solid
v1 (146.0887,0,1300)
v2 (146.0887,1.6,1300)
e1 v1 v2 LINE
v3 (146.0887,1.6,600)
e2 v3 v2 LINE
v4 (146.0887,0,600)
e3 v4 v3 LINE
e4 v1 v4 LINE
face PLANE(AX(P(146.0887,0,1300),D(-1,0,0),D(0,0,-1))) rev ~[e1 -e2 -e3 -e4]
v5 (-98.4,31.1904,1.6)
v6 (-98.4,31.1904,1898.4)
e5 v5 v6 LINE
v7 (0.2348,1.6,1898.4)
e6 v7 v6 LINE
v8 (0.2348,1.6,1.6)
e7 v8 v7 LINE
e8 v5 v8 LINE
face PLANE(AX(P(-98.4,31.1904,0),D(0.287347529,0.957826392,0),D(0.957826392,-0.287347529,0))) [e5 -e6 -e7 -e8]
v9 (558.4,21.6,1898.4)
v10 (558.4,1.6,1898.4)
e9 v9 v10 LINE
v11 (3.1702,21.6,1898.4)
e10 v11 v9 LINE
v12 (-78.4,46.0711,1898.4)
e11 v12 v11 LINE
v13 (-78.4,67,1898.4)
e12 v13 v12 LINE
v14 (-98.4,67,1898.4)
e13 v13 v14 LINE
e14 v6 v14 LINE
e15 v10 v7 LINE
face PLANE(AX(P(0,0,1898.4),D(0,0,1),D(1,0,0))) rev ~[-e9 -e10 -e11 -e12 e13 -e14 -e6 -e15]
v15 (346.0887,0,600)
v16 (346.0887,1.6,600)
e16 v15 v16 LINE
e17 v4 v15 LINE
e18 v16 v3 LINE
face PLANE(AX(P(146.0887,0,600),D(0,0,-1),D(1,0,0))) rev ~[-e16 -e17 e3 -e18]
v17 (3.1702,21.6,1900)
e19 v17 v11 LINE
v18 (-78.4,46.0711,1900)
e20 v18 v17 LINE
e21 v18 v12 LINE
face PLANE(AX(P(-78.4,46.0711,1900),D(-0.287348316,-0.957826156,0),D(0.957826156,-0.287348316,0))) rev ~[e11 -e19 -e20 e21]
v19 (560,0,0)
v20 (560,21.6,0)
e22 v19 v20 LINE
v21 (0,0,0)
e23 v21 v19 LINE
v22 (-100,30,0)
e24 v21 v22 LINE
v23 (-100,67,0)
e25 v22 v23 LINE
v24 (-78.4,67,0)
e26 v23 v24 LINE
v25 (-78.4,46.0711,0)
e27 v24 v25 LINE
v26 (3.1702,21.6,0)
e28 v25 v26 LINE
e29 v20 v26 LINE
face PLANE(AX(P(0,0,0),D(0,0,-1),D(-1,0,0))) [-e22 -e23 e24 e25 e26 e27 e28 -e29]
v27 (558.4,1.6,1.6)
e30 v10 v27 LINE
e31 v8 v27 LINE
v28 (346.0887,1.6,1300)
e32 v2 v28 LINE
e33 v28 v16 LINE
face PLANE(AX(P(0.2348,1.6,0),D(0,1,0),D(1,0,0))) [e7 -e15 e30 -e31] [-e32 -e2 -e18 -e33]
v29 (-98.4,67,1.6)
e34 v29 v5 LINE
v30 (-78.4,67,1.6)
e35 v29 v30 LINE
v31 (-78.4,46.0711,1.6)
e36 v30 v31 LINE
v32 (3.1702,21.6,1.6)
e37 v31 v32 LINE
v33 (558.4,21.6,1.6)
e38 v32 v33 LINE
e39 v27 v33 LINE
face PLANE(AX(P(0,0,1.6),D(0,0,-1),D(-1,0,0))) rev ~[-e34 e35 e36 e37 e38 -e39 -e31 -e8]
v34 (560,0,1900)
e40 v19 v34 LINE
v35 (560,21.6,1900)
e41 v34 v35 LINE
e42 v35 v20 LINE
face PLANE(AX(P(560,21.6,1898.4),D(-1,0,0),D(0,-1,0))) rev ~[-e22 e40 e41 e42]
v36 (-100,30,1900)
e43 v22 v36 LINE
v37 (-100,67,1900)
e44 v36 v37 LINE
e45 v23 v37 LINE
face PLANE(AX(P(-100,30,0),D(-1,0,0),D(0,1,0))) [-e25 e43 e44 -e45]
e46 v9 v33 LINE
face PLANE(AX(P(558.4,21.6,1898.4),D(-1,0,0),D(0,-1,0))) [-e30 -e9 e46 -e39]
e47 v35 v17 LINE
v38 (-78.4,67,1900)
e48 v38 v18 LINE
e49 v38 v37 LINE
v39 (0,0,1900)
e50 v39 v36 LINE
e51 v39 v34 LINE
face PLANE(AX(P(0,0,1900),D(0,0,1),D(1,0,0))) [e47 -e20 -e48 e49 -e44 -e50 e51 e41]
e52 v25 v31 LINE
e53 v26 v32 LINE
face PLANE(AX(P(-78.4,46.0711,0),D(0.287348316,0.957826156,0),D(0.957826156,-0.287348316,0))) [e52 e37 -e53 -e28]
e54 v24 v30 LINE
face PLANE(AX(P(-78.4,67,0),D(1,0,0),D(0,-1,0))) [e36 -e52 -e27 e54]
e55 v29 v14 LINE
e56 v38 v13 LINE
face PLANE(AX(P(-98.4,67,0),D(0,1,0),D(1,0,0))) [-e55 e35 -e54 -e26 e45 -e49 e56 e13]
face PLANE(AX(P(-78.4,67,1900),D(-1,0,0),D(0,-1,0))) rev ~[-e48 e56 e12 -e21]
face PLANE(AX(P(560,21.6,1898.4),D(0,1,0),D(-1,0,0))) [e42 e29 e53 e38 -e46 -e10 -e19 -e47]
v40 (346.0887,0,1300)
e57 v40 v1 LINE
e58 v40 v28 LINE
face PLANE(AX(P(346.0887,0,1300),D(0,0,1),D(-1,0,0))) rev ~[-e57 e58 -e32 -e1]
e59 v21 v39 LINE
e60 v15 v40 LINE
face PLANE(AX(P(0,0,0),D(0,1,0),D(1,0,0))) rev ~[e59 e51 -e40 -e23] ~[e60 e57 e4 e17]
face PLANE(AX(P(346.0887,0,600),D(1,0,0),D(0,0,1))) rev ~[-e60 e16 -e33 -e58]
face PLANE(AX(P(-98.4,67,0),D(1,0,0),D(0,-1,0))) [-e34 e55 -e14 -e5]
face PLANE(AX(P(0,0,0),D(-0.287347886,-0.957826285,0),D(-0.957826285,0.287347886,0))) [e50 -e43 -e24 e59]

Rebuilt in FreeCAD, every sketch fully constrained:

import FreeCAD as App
import Part
import Sketcher
from FreeCAD import Vector
Q = App.Units.Quantity


def add_polygon(sketch, points):
    """Adds a closed chain of lines whose ends are joined by coincident constraints."""
    first, n = sketch.GeometryCount, len(points)
    for a, b in zip(points, points[1:] + points[:1]):
        sketch.addGeometry(Part.LineSegment(App.Vector(*a, 0), App.Vector(*b, 0)), False)
    for i in range(n):
        sketch.addConstraint(Sketcher.Constraint("Coincident", first + i, 2, first + (i + 1) % n, 1))

doc = App.newDocument("Part")
body = doc.addObject("PartDesign::Body", "Body")

# Sketch on XY plane
sketch1 = body.newObject("Sketcher::SketchObject", "Sketch")
sketch1.AttachmentSupport = (doc.getObject("XY_Plane"), [""])
sketch1.MapMode = "FlatFace"
add_polygon(sketch1, [(-100, 30), (0, 0), (560, 0), (560, 1.6), (0.2, 1.6), (-98.4, 31.2), (-98.4, 67), (-100, 67)])  # lines 0-7
sketch1.addConstraint([
    Sketcher.Constraint("Horizontal", 1),
    Sketcher.Constraint("Vertical", 2),
    Sketcher.Constraint("Horizontal", 3),
    Sketcher.Constraint("Vertical", 5),
    Sketcher.Constraint("Horizontal", 6),
    Sketcher.Constraint("Vertical", 7),
    Sketcher.Constraint("Coincident", 0, 2, -1, 1),
    Sketcher.Constraint("Parallel", 0, 4),
    Sketcher.Constraint("Equal", 6, 2),
    Sketcher.Constraint("DistanceX", 1, 1, 1, 2, 560.0),
    Sketcher.Constraint("DistanceY", 7, 2, 7, 1, 37.0),
    Sketcher.Constraint("DistanceX", 6, 2, 6, 1, 1.6),
    Sketcher.Constraint("DistanceX", 6, 2, -1, 1, 100.0),
    Sketcher.Constraint("DistanceY", -1, 1, 7, 2, 30.0),
    Sketcher.Constraint("DistanceX", 3, 2, 3, 1, 559.7652),
])
pad1 = body.newObject("PartDesign::Pad", "Pad")
pad1.Profile = sketch1
pad1.Length = 1900

# Sketch on XY plane
sketch2 = body.newObject("Sketcher::SketchObject", "Sketch001")
sketch2.AttachmentSupport = (doc.getObject("XY_Plane"), [""])
sketch2.MapMode = "FlatFace"
sketch2.AttachmentOffset = App.Placement(Vector(0, 0, 1900), App.Rotation())
add_polygon(sketch2, [(-98, 67), (-98, 31), (0, 2), (560, 2), (560, 22), (3, 22), (-78, 46), (-78, 67)])  # lines 0-7
sketch2.addConstraint([
    Sketcher.Constraint("Vertical", 0),
    Sketcher.Constraint("Horizontal", 2),
    Sketcher.Constraint("Vertical", 3),
    Sketcher.Constraint("Horizontal", 4),
    Sketcher.Constraint("Vertical", 6),
    Sketcher.Constraint("Horizontal", 7),
    Sketcher.Constraint("Parallel", 1, 5),
    Sketcher.Constraint("Equal", 7, 3),
    Sketcher.Constraint("DistanceX", 7, 2, 7, 1, 20.0),
    Sketcher.Constraint("DistanceY", -1, 1, 1, 2, 1.6),
    Sketcher.Constraint("DistanceX", -1, 1, 2, 2, 560.0),
    Sketcher.Constraint("DistanceY", -1, 1, 6, 2, 67.0),
    Sketcher.Constraint("Angle", 1, Q("-16.6992 deg")),
    Sketcher.Constraint("DistanceX", 0, 2, -1, 1, 98.4),
    Sketcher.Constraint("DistanceY", 6, 1, 6, 2, 20.929),
    Sketcher.Constraint("DistanceX", 2, 1, 2, 2, 559.7652),
])
pad2 = body.newObject("PartDesign::Pad", "Pad001")
pad2.Profile = sketch2
pad2.Length = 1.6
pad2.Reversed = True

# Sketch on XY plane
sketch3 = body.newObject("Sketcher::SketchObject", "Sketch002")
sketch3.AttachmentSupport = (doc.getObject("XY_Plane"), [""])
sketch3.MapMode = "FlatFace"
add_polygon(sketch3, [(-98, 31), (-98, 67), (-78, 67), (-78, 46), (3, 22), (560, 22), (560, 2), (0, 2)])  # lines 0-7
sketch3.addConstraint([
    Sketcher.Constraint("Vertical", 0),
    Sketcher.Constraint("Horizontal", 1),
    Sketcher.Constraint("Vertical", 2),
    Sketcher.Constraint("Horizontal", 4),
    Sketcher.Constraint("Vertical", 5),
    Sketcher.Constraint("Horizontal", 6),
    Sketcher.Constraint("Parallel", 3, 7),
    Sketcher.Constraint("Equal", 1, 5),
    Sketcher.Constraint("DistanceX", 1, 1, 1, 2, 20.0),
    Sketcher.Constraint("DistanceY", -1, 1, 0, 2, 67.0),
    Sketcher.Constraint("DistanceX", -1, 1, 4, 2, 560.0),
    Sketcher.Constraint("Angle", 3, Q("-16.6993 deg")),
    Sketcher.Constraint("DistanceX", 0, 2, -1, 1, 98.4),
    Sketcher.Constraint("DistanceY", -1, 1, 3, 2, 21.6),
    Sketcher.Constraint("DistanceY", 2, 2, 2, 1, 20.929),
    Sketcher.Constraint("DistanceX", 6, 2, 6, 1, 559.7652),
])
pad3 = body.newObject("PartDesign::Pad", "Pad002")
pad3.Profile = sketch3
pad3.Length = 1.6

# Sketch on XY plane
sketch4 = body.newObject("Sketcher::SketchObject", "Sketch003")
sketch4.AttachmentSupport = (doc.getObject("XY_Plane"), [""])
sketch4.MapMode = "FlatFace"
sketch4.AttachmentOffset = App.Placement(Vector(0, 0, 1898.4), App.Rotation())
add_polygon(sketch4, [(558.4, 21.6), (560, 21.6), (560, 1.6), (558.4, 1.6)])  # lines 0-3
sketch4.addConstraint([
    Sketcher.Constraint("Horizontal", 0),
    Sketcher.Constraint("Vertical", 1),
    Sketcher.Constraint("Horizontal", 2),
    Sketcher.Constraint("Vertical", 3),
    Sketcher.Constraint("DistanceY", 1, 2, 1, 1, 20.0),
    Sketcher.Constraint("DistanceX", 0, 1, 0, 2, 1.6),
    Sketcher.Constraint("DistanceY", -1, 1, 1, 2, 1.6),
    Sketcher.Constraint("DistanceX", -1, 1, 0, 2, 560.0),
])
pad4 = body.newObject("PartDesign::Pad", "Pad003")
pad4.Profile = sketch4
pad4.Length = 1898.4
pad4.Reversed = True

# Sketch on XZ plane
sketch5 = body.newObject("Sketcher::SketchObject", "Sketch004")
sketch5.AttachmentSupport = (doc.getObject("XZ_Plane"), [""])
sketch5.MapMode = "FlatFace"
add_polygon(sketch5, [(146, 1300), (146, 600), (346, 600), (346, 1300)])  # lines 0-3
sketch5.addConstraint([
    Sketcher.Constraint("Vertical", 0),
    Sketcher.Constraint("Horizontal", 1),
    Sketcher.Constraint("Vertical", 2),
    Sketcher.Constraint("Horizontal", 3),
    Sketcher.Constraint("DistanceX", 1, 1, 1, 2, 200.0),
    Sketcher.Constraint("DistanceY", 0, 2, 0, 1, 700.0),
    Sketcher.Constraint("DistanceY", -1, 1, 0, 2, 600.0),
    Sketcher.Constraint("DistanceX", -1, 1, 0, 2, 146.0887),
])
pocket1 = body.newObject("PartDesign::Pocket", "Pocket")
pocket1.Profile = sketch5
pocket1.Length = 10

doc.recompute()
